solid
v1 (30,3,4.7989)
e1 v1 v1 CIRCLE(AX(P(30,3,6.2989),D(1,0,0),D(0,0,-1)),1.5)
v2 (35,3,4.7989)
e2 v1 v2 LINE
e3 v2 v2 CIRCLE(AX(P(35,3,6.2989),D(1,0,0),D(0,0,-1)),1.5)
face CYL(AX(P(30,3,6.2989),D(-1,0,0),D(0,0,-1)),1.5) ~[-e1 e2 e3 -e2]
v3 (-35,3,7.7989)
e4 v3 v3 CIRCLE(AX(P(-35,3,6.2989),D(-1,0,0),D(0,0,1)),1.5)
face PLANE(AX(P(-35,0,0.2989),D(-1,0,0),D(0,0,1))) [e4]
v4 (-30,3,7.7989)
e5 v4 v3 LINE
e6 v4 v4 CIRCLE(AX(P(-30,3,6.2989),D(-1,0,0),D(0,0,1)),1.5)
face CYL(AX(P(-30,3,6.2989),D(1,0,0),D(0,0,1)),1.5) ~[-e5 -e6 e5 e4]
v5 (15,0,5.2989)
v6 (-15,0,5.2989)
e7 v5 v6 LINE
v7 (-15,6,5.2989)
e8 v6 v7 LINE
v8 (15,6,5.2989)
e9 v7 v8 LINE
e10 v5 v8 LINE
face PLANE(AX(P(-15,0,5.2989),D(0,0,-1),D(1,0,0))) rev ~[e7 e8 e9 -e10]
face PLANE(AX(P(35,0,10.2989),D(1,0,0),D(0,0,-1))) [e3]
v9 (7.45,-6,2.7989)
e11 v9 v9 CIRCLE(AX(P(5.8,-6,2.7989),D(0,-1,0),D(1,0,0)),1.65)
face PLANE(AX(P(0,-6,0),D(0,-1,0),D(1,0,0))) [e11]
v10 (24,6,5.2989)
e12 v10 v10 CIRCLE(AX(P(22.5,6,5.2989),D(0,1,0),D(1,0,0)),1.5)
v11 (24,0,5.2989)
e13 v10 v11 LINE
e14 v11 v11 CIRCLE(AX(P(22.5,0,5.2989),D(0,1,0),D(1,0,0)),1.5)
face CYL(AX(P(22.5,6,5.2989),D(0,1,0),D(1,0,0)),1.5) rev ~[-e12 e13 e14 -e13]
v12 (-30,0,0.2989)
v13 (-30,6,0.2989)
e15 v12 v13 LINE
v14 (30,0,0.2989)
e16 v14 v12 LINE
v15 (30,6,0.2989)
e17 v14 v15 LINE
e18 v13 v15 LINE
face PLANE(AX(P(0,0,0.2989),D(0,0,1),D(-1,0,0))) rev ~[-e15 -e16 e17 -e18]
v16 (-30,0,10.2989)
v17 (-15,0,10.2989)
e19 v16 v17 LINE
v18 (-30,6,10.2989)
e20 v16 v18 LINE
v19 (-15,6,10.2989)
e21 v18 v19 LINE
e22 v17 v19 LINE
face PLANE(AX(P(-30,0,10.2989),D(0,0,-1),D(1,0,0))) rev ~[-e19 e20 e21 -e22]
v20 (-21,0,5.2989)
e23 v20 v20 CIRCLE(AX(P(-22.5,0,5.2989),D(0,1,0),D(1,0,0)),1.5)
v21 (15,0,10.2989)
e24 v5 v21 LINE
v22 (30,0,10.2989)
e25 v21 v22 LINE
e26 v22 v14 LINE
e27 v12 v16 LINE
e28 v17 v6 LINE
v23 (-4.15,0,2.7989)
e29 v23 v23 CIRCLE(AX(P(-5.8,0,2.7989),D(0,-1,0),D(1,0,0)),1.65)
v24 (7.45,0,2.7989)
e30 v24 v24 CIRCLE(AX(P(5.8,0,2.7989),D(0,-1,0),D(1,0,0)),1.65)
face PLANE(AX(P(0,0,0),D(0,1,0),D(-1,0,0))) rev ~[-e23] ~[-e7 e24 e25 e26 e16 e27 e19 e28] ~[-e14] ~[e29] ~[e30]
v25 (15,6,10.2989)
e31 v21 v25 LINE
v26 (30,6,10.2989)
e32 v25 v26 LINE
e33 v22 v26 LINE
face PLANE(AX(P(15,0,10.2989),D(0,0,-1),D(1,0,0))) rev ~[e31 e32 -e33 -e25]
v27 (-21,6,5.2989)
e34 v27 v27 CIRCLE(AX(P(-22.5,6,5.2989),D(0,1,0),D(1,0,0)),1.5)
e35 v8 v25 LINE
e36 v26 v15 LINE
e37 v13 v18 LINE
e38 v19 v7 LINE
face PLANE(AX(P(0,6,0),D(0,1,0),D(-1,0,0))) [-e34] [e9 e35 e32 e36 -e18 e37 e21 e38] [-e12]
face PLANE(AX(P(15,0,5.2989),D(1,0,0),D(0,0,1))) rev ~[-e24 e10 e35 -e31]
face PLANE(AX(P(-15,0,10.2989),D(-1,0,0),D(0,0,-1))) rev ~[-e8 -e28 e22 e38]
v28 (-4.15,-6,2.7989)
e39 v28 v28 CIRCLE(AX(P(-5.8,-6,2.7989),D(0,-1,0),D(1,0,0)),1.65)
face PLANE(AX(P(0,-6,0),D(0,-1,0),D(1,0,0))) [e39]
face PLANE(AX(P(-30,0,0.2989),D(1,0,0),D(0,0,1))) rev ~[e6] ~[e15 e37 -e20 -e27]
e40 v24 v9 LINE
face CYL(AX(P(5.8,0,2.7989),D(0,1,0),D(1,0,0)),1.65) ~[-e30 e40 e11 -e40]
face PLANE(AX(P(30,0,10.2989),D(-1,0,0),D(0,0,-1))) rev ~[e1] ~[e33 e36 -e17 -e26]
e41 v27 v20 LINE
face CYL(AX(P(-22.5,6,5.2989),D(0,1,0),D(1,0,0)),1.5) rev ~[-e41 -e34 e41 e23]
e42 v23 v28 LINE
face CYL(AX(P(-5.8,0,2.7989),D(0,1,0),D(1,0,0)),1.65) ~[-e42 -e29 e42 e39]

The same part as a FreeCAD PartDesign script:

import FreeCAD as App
import Part
import Sketcher


def add_polygon(sketch, points):
    """Adds a closed chain of lines whose ends are joined by coincident constraints."""
    first, n = sketch.GeometryCount, len(points)
    for a, b in zip(points, points[1:] + points[:1]):
        sketch.addGeometry(Part.LineSegment(App.Vector(*a, 0), App.Vector(*b, 0)), False)
    for i in range(n):
        sketch.addConstraint(Sketcher.Constraint("Coincident", first + i, 2, first + (i + 1) % n, 1))

doc = App.newDocument("Part")
body = doc.addObject("PartDesign::Body", "Body")

# Sketch on XZ plane
sketch1 = doc.addObject("Sketcher::SketchObject", "Sketch")
body.addObject(sketch1)
sketch1.AttachmentSupport = (doc.XZ_Plane, [""])
sketch1.MapMode = "FlatFace"
add_polygon(sketch1, [(-30, 0), (-30, 10), (-15, 10), (-15, 5), (15, 5), (15, 10), (30, 10), (30, 0)])  # lines 0-7
sketch1.addConstraint(Sketcher.Constraint("Vertical", 0))
sketch1.addConstraint(Sketcher.Constraint("Horizontal", 1))
sketch1.addConstraint(Sketcher.Constraint("Vertical", 2))
sketch1.addConstraint(Sketcher.Constraint("Horizontal", 3))
sketch1.addConstraint(Sketcher.Constraint("Vertical", 4))
sketch1.addConstraint(Sketcher.Constraint("Horizontal", 5))
sketch1.addConstraint(Sketcher.Constraint("Vertical", 6))
sketch1.addConstraint(Sketcher.Constraint("Horizontal", 7))
sketch1.addConstraint(Sketcher.Constraint("Symmetric", 1, 2, 4, 2, -2))
sketch1.addConstraint(Sketcher.Constraint("Equal", 1, 5))
sketch1.addConstraint(Sketcher.Constraint("DistanceX", 1, 1, 1, 2, 15.0))
sketch1.addConstraint(Sketcher.Constraint("DistanceX", 3, 1, 3, 2, 30.0))
sketch1.addConstraint(Sketcher.Constraint("DistanceY", 2, 2, 2, 1, 5.0))
sketch1.addConstraint(Sketcher.Constraint("DistanceY", 6, 2, 3, 2, 5.0))
sketch1.addConstraint(Sketcher.Constraint("DistanceY", -1, 1, 0, 2, 10.299))
pad1 = doc.addObject("PartDesign::Pad", "Pad")
body.addObject(pad1)
pad1.Profile = sketch1
pad1.Length = 6
pad1.Reversed = True

# Sketch on YZ plane
sketch2 = doc.addObject("Sketcher::SketchObject", "Sketch001")
body.addObject(sketch2)
sketch2.AttachmentSupport = (doc.YZ_Plane, [""])
sketch2.MapMode = "FlatFace"
sketch2.AttachmentOffset = App.Placement(App.Vector(0, 0, 30), App.Rotation())
sketch2.addGeometry(Part.Circle(App.Vector(3, 6.3, 0), App.Vector(0, 0, 1), 1.5), False)
sketch2.addConstraint(Sketcher.Constraint("Diameter", 0, 3.0))
sketch2.addConstraint(Sketcher.Constraint("DistanceX", -1, 1, 0, 3, 3.0))
sketch2.addConstraint(Sketcher.Constraint("DistanceY", -1, 1, 0, 3, 6.299))
pad2 = doc.addObject("PartDesign::Pad", "Pad001")
body.addObject(pad2)
pad2.Profile = sketch2
pad2.Length = 5

# Sketch on YZ plane
sketch3 = doc.addObject("Sketcher::SketchObject", "Sketch002")
body.addObject(sketch3)
sketch3.AttachmentSupport = (doc.YZ_Plane, [""])
sketch3.MapMode = "FlatFace"
sketch3.AttachmentOffset = App.Placement(App.Vector(0, 0, -30), App.Rotation())
sketch3.addGeometry(Part.Circle(App.Vector(3, 6.3, 0), App.Vector(0, 0, 1), 1.5), False)
sketch3.addConstraint(Sketcher.Constraint("Diameter", 0, 3.0))
sketch3.addConstraint(Sketcher.Constraint("DistanceX", -1, 1, 0, 3, 3.0))
sketch3.addConstraint(Sketcher.Constraint("DistanceY", -1, 1, 0, 3, 6.299))
pad3 = doc.addObject("PartDesign::Pad", "Pad002")
body.addObject(pad3)
pad3.Profile = sketch3
pad3.Length = 5
pad3.Reversed = True

# Sketch on XZ plane
sketch4 = doc.addObject("Sketcher::SketchObject", "Sketch003")
body.addObject(sketch4)
sketch4.AttachmentSupport = (doc.XZ_Plane, [""])
sketch4.MapMode = "FlatFace"
sketch4.AttachmentOffset = App.Placement(App.Vector(0, 0, -6), App.Rotation())
sketch4.addGeometry(Part.Circle(App.Vector(-22.5, 5.3, 0), App.Vector(0, 0, 1), 1.5), False)
sketch4.addGeometry(Part.Circle(App.Vector(22.5, 5.3, 0), App.Vector(0, 0, 1), 1.5), False)
sketch4.addConstraint(Sketcher.Constraint("Equal", 0, 1))
sketch4.addConstraint(Sketcher.Constraint("Symmetric", 0, 3, 1, 3, -2))
sketch4.addConstraint(Sketcher.Constraint("Diameter", 0, 3.0))
sketch4.addConstraint(Sketcher.Constraint("DistanceX", 0, 3, 1, 3, 45.0))
sketch4.addConstraint(Sketcher.Constraint("DistanceY", -1, 1, 0, 3, 5.299))
pocket1 = doc.addObject("PartDesign::Pocket", "Pocket")
body.addObject(pocket1)
pocket1.Profile = sketch4
pocket1.Length = 6
pocket1.Reversed = True

# Sketch on XZ plane
sketch5 = doc.addObject("Sketcher::SketchObject", "Sketch004")
body.addObject(sketch5)
sketch5.AttachmentSupport = (doc.XZ_Plane, [""])
sketch5.MapMode = "FlatFace"
sketch5.addGeometry(Part.Circle(App.Vector(-5.8, 2.8, 0), App.Vector(0, 0, 1), 1.6), False)
sketch5.addGeometry(Part.Circle(App.Vector(5.8, 2.8, 0), App.Vector(0, 0, 1), 1.6), False)
sketch5.addConstraint(Sketcher.Constraint("Equal", 0, 1))
sketch5.addConstraint(Sketcher.Constraint("Symmetric", 0, 3, 1, 3, -2))
sketch5.addConstraint(Sketcher.Constraint("Diameter", 0, 3.3))
sketch5.addConstraint(Sketcher.Constraint("DistanceX", 0, 3, -1, 1, 5.8))
sketch5.addConstraint(Sketcher.Constraint("DistanceY", -1, 1, 0, 3, 2.799))
pad4 = doc.addObject("PartDesign::Pad", "Pad003")
body.addObject(pad4)
pad4.Profile = sketch5
pad4.Length = 6

doc.recompute()
